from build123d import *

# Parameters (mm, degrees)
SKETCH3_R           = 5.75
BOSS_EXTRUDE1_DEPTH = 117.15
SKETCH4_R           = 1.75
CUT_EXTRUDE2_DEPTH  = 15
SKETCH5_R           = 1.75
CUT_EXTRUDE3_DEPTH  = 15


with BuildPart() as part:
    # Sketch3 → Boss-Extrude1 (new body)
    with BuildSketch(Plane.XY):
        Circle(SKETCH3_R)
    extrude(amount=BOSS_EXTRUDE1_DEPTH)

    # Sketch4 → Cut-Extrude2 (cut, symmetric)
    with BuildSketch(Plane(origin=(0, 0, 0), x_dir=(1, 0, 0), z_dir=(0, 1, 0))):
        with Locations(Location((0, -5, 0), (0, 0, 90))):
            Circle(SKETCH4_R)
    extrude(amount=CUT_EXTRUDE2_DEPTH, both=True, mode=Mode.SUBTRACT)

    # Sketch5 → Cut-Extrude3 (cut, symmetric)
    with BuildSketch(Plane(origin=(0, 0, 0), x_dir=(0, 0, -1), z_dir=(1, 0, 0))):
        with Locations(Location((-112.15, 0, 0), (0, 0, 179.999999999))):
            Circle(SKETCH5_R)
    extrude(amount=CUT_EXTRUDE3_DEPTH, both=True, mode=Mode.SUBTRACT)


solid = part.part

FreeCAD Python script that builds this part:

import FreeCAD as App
import Part
import Sketcher
Q = App.Units.Quantity

doc = App.newDocument("Part")
body = doc.addObject("PartDesign::Body", "Body")

# Sketch on XY plane
sketch1 = body.newObject("Sketcher::SketchObject", "Sketch")
sketch1.AttachmentSupport = (doc.getObject("XY_Plane"), [""])
sketch1.MapMode = "FlatFace"
sketch1.addGeometry(Part.Circle(App.Vector(0, 0, 0), App.Vector(0, 0, 1), 6), False)
sketch1.addConstraint([
    Sketcher.Constraint("Coincident", 0, 3, -1, 1),
    Sketcher.Constraint("Diameter", 0, Q("11.5 mm")),
])
pad1 = body.newObject("PartDesign::Pad", "Pad")
pad1.Profile = sketch1
pad1.Length = 117.15

# Sketch on XZ plane
sketch2 = body.newObject("Sketcher::SketchObject", "Sketch001")
sketch2.AttachmentSupport = (doc.getObject("XZ_Plane"), [""])
sketch2.MapMode = "FlatFace"
sketch2.addGeometry(Part.Circle(App.Vector(0, 5, 0), App.Vector(0, 0, 1), 1.8), False)
sketch2.addConstraint([
    Sketcher.Constraint("PointOnObject", 0, 3, -2),
    Sketcher.Constraint("Diameter", 0, Q("3.5 mm")),
    Sketcher.Constraint("DistanceY", -1, 1, 0, 3, Q("5 mm")),
])
pocket1 = body.newObject("PartDesign::Pocket", "Pocket")
pocket1.Profile = sketch2
pocket1.Length = 30
pocket1.Midplane = True

# Sketch on YZ plane
sketch3 = body.newObject("Sketcher::SketchObject", "Sketch002")
sketch3.AttachmentSupport = (doc.getObject("YZ_Plane"), [""])
sketch3.MapMode = "FlatFace"
sketch3.addGeometry(Part.Circle(App.Vector(0, 112.2, 0), App.Vector(0, 0, 1), 1.8), False)
sketch3.addConstraint([
    Sketcher.Constraint("PointOnObject", 0, 3, -2),
    Sketcher.Constraint("Diameter", 0, Q("3.5 mm")),
    Sketcher.Constraint("DistanceY", -1, 1, 0, 3, Q("112.15 mm")),
])
pocket2 = body.newObject("PartDesign::Pocket", "Pocket001")
pocket2.Profile = sketch3
pocket2.Length = 30
pocket2.Midplane = True

doc.recompute()
